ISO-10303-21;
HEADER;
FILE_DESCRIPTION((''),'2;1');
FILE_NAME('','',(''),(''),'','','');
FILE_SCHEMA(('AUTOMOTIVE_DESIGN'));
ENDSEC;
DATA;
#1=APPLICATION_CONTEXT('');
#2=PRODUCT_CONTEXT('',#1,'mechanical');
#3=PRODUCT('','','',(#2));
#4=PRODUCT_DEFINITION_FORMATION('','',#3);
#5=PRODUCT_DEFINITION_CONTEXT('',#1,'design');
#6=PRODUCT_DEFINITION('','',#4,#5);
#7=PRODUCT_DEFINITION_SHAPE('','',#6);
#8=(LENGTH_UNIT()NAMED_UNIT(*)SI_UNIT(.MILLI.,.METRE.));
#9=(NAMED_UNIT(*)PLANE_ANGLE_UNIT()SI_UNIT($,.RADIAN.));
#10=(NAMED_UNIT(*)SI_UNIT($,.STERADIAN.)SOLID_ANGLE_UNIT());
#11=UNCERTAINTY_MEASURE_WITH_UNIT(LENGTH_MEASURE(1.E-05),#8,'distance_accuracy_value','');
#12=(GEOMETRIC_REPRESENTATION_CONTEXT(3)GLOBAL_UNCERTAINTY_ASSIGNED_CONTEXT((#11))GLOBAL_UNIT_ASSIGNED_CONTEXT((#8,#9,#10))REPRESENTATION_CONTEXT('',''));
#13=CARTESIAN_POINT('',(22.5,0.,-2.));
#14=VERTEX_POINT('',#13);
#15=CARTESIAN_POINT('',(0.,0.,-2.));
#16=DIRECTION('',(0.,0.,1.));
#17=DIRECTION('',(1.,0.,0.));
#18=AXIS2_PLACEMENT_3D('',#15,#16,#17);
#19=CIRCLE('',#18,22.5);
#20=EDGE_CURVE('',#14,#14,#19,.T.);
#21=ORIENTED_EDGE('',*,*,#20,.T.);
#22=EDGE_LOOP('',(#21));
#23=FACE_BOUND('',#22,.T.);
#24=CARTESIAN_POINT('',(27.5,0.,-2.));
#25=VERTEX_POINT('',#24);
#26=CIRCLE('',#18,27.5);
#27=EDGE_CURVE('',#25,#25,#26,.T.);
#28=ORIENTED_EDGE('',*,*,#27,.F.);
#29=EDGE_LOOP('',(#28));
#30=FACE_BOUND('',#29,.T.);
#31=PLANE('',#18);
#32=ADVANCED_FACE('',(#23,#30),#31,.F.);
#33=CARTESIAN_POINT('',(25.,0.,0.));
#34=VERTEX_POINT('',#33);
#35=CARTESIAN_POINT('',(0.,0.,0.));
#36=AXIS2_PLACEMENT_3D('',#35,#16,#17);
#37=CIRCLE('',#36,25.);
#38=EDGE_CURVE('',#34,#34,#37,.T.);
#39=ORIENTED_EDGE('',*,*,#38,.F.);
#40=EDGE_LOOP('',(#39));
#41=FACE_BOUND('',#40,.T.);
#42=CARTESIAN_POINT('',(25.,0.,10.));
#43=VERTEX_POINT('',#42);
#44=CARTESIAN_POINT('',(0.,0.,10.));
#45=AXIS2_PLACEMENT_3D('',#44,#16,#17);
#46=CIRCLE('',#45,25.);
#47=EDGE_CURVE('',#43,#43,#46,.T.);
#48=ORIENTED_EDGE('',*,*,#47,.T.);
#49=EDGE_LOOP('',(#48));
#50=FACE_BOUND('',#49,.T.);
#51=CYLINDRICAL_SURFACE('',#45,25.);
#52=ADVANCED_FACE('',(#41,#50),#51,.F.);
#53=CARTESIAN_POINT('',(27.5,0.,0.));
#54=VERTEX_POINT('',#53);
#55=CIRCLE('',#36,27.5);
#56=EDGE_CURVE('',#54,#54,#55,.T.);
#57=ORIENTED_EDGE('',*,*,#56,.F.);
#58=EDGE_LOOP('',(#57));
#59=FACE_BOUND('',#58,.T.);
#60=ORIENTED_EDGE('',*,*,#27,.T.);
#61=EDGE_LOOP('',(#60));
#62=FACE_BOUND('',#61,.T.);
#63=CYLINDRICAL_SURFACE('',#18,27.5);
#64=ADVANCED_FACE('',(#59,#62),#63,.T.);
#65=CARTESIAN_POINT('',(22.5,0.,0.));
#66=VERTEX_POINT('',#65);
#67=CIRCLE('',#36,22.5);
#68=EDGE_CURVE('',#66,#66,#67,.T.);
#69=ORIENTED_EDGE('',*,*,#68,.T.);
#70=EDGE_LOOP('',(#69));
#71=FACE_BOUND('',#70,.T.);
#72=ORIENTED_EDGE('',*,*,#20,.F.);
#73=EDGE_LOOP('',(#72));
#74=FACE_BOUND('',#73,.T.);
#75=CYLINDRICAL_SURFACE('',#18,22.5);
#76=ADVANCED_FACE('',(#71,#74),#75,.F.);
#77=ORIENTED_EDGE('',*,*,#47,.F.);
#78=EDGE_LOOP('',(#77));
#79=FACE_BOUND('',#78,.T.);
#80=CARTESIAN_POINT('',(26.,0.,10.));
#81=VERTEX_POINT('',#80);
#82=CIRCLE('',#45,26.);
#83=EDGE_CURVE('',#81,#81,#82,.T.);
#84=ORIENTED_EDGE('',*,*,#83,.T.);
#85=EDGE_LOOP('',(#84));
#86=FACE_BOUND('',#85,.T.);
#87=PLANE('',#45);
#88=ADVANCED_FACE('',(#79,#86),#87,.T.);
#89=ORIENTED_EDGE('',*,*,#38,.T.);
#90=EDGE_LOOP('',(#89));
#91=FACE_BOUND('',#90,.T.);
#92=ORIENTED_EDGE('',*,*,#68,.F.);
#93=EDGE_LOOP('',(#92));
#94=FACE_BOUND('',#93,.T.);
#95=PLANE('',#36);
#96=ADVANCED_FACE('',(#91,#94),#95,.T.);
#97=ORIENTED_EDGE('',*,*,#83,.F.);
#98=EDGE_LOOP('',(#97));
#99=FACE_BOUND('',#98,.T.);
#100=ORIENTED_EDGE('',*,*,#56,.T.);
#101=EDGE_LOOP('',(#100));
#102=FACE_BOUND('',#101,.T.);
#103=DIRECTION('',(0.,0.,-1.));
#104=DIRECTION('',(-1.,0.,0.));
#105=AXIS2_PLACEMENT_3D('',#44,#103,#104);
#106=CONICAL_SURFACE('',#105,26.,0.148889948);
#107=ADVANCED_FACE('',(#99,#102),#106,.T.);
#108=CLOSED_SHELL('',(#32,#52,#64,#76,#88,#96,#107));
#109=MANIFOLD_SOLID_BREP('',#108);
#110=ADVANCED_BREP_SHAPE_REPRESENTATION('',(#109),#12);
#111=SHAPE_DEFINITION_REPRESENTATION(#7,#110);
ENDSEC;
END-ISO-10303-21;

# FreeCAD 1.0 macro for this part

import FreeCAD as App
import Part
import Sketcher

doc = App.newDocument("Part")
params = doc.addObject("Spreadsheet::Sheet", "Params")
for row, (alias, value) in enumerate([
    ("sketch1_width", "1 mm"),
    ("sketch1_height", "10 mm"),
    ("sketch1_width2", "2.5 mm"),
    ("revolution_angle", "360 deg"),
    ("sketch2_diameter", "55 mm"),
    ("sketch2_diameter2", "45 mm"),
    ("pad1_length", "2 mm"),
], start=1):
    params.set(f"A{row}", alias)
    params.set(f"B{row}", "=" + value)
    params.setAlias(f"B{row}", alias)

body = doc.addObject("PartDesign::Body", "Body")

sketch1 = body.newObject("Sketcher::SketchObject", "Sketch")
sketch1.AttachmentSupport = (doc.getObject("YZ_Plane"), [""])
sketch1.MapMode = "FlatFace"
sketch1.addGeometry([
    Part.LineSegment(App.Vector(27.5, 0, 0), App.Vector(26, 10, 0)),
    Part.LineSegment(App.Vector(26, 10, 0), App.Vector(25, 10, 0)),
    Part.LineSegment(App.Vector(25, 10, 0), App.Vector(25, 0, 0)),
    Part.LineSegment(App.Vector(25, 0, 0), App.Vector(27.5, 0, 0)),
], False)
sketch1.addConstraint([
    Sketcher.Constraint("Coincident", 0, 2, 1, 1),
    Sketcher.Constraint("Coincident", 1, 2, 2, 1),
    Sketcher.Constraint("Coincident", 2, 2, 3, 1),
    Sketcher.Constraint("Coincident", 3, 2, 0, 1),
    Sketcher.Constraint("Horizontal", 1),
    Sketcher.Constraint("Vertical", 2),
    Sketcher.Constraint("Horizontal", 3),
    Sketcher.Constraint("PointOnObject", 2, 2, -1),
    Sketcher.Constraint("DistanceX", 1, 2, 1, 1, 1.0),
    Sketcher.Constraint("DistanceY", 2, 2, 2, 1, 10.0),
    Sketcher.Constraint("DistanceX", 3, 1, 3, 2, 2.5),
    Sketcher.Constraint("DistanceX", -1, 1, 0, 2, 26.0),
])
sketch1.setExpression("Constraints[8]", "Params.sketch1_width")
sketch1.setExpression("Constraints[9]", "Params.sketch1_height")
sketch1.setExpression("Constraints[10]", "Params.sketch1_width2")
revolution = body.newObject("PartDesign::Revolution", "Revolution")
revolution.Profile = sketch1
revolution.ReferenceAxis = (sketch1, ["V_Axis"])
revolution.setExpression("Angle", "Params.revolution_angle")

sketch2 = body.newObject("Sketcher::SketchObject", "Sketch001")
sketch2.AttachmentSupport = (doc.getObject("XY_Plane"), [""])
sketch2.MapMode = "FlatFace"
sketch2.addGeometry([
    Part.Circle(App.Vector(0, 0, 0), App.Vector(0, 0, 1), 28),
    Part.Circle(App.Vector(0, 0, 0), App.Vector(0, 0, 1), 22),
], False)
sketch2.addConstraint([
    Sketcher.Constraint("Coincident", 0, 3, -1, 1),
    Sketcher.Constraint("Coincident", 1, 3, -1, 1),
    Sketcher.Constraint("Diameter", 0, 55.0),
    Sketcher.Constraint("Diameter", 1, 45.0),
])
sketch2.setExpression("Constraints[2]", "Params.sketch2_diameter")
sketch2.setExpression("Constraints[3]", "Params.sketch2_diameter2")
pad1 = body.newObject("PartDesign::Pad", "Pad")
pad1.Profile = sketch2
pad1.setExpression("Length", "Params.pad1_length")
pad1.Reversed = True

doc.recompute()
